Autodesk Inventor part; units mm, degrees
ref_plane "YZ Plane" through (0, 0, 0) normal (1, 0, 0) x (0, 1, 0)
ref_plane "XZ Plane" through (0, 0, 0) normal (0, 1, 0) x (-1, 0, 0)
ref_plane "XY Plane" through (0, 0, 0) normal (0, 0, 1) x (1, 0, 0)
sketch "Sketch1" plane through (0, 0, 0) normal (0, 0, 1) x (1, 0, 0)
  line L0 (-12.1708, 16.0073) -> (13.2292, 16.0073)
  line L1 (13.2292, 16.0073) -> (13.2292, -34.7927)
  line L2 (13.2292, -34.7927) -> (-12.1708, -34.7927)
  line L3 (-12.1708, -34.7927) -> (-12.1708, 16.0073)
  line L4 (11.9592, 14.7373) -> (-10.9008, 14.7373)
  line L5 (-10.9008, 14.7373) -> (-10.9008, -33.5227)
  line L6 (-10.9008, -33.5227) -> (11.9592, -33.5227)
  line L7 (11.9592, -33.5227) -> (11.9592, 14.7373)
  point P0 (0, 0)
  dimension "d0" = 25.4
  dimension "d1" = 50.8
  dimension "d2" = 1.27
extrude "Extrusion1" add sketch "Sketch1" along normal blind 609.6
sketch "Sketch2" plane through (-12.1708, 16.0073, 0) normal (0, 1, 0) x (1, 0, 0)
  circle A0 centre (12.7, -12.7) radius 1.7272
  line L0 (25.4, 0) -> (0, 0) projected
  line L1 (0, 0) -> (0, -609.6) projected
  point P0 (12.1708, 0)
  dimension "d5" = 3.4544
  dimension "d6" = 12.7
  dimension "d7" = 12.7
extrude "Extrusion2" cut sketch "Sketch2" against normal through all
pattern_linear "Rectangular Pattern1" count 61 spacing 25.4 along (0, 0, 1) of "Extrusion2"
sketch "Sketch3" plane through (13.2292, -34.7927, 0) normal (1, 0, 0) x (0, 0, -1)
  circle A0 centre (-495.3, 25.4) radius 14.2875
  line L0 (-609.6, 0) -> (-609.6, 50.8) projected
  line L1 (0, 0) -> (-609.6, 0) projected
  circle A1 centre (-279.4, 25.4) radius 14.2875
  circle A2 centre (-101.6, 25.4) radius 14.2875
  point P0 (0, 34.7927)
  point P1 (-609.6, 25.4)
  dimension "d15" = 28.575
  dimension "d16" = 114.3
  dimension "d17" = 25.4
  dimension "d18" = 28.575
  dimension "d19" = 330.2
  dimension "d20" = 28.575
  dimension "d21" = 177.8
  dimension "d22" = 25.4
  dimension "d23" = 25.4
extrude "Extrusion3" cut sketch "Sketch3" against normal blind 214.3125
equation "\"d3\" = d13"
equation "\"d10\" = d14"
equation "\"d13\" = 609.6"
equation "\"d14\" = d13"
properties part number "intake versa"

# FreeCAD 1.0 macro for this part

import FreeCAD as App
import Part
import Sketcher
Q = App.Units.Quantity


def add_polygon(sketch, points):
    """Adds a closed chain of lines whose ends are joined by coincident constraints."""
    first, n = sketch.GeometryCount, len(points)
    for a, b in zip(points, points[1:] + points[:1]):
        sketch.addGeometry(Part.LineSegment(App.Vector(*a, 0), App.Vector(*b, 0)), False)
    for i in range(n):
        sketch.addConstraint(Sketcher.Constraint("Coincident", first + i, 2, first + (i + 1) % n, 1))

doc = App.newDocument("Part")
body = doc.addObject("PartDesign::Body", "Body")

sketch1 = body.newObject("Sketcher::SketchObject", "Sketch")
sketch1.AttachmentSupport = (doc.getObject("XY_Plane"), [""])
sketch1.MapMode = "FlatFace"
add_polygon(sketch1, [(13, 16), (-12, 16), (-12, -35), (13, -35)])
add_polygon(sketch1, [(-11, 15), (12, 15), (12, -34), (-11, -34)])
sketch1.addConstraint([
    Sketcher.Constraint("Horizontal", 0),
    Sketcher.Constraint("Vertical", 1),
    Sketcher.Constraint("Horizontal", 2),
    Sketcher.Constraint("Vertical", 3),
    Sketcher.Constraint("Horizontal", 4),
    Sketcher.Constraint("Vertical", 5),
    Sketcher.Constraint("Horizontal", 6),
    Sketcher.Constraint("Vertical", 7),
    Sketcher.Constraint("DistanceX", 0, 2, 0, 1, Q("1 in")),
    Sketcher.Constraint("DistanceY", 1, 2, 1, 1, Q("2 in")),
    Sketcher.Constraint("DistanceX", 4, 2, 3, 2, Q("0.05 in")),
    Sketcher.Constraint("DistanceY", 4, 2, 3, 2, Q("0.05 in")),
    Sketcher.Constraint("DistanceY", 2, 2, 5, 2, Q("0.05 in")),
    Sketcher.Constraint("DistanceX", 1, 2, 6, 2, Q("0.05 in")),
    Sketcher.Constraint("DistanceY", -1, 1, 0, 2, Q("0.6302 in")),
    Sketcher.Constraint("DistanceX", 0, 2, -1, 1, 12.1708),
])
pad1 = body.newObject("PartDesign::Pad", "Pad")
pad1.Profile = sketch1
pad1.Length = Q("24 in")

sketch2 = body.newObject("Sketcher::SketchObject", "Sketch001")
sketch2.AttachmentSupport = (doc.getObject("XZ_Plane"), [""])
sketch2.MapMode = "FlatFace"
sketch2.AttachmentOffset = App.Placement(App.Vector(0, 0, -0.6302087 * 25.4), App.Rotation())
sketch2.addGeometry(Part.Circle(App.Vector(0.5, 12.7, 0), App.Vector(0, 0, 1), 1.7), False)
sketch2.addConstraint([
    Sketcher.Constraint("Diameter", 0, Q("0.136 in")),
    Sketcher.Constraint("DistanceY", -1, 1, 0, 3, Q("0.5 in")),
    Sketcher.Constraint("DistanceX", -1, 1, 0, 3, 0.5292),
])
pocket1 = body.newObject("PartDesign::Pocket", "Pocket")
pocket1.Profile = sketch2
pocket1.Type = "ThroughAll"
pocket1.Reversed = True
doc.recompute()

linearpattern = body.newObject("PartDesign::LinearPattern", "LinearPattern")
linearpattern.Originals = [pocket1]
linearpattern.Direction = (doc.getObject("Z_Axis"), [""])
linearpattern.Mode = "offset"
linearpattern.Offset = Q("1 in")
linearpattern.Occurrences = 61
body.Tip = linearpattern

sketch3 = body.newObject("Sketcher::SketchObject", "Sketch002")
sketch3.AttachmentSupport = (doc.getObject("YZ_Plane"), [""])
sketch3.MapMode = "FlatFace"
sketch3.AttachmentOffset = App.Placement(App.Vector(0, 0, 13.2292), App.Rotation())
sketch3.addGeometry([
    Part.Circle(App.Vector(-9, 495, 0), App.Vector(0, 0, 1), 14),
    Part.Circle(App.Vector(-9, 279, 0), App.Vector(0, 0, 1), 14),
    Part.Circle(App.Vector(-9, 102, 0), App.Vector(0, 0, 1), 14),
], False)
sketch3.addConstraint([
    Sketcher.Constraint("Equal", 0, 1),
    Sketcher.Constraint("Equal", 1, 2),
    Sketcher.Constraint("Vertical", 0, 3, 1, 3),
    Sketcher.Constraint("Vertical", 1, 3, 2, 3),
    Sketcher.Constraint("Diameter", 0, Q("1.125 in")),
    Sketcher.Constraint("DistanceY", 2, 3, 1, 3, Q("7 in")),
    Sketcher.Constraint("DistanceY", -1, 1, 1, 3, Q("11 in")),
    Sketcher.Constraint("DistanceY", -1, 1, 0, 3, Q("19.5 in")),
    Sketcher.Constraint("DistanceX", 0, 3, -1, 1, Q("0.3698 in")),
])
pocket2 = body.newObject("PartDesign::Pocket", "Pocket001")
pocket2.Profile = sketch3
pocket2.Length = Q("8.4375 in")

doc.recompute()
